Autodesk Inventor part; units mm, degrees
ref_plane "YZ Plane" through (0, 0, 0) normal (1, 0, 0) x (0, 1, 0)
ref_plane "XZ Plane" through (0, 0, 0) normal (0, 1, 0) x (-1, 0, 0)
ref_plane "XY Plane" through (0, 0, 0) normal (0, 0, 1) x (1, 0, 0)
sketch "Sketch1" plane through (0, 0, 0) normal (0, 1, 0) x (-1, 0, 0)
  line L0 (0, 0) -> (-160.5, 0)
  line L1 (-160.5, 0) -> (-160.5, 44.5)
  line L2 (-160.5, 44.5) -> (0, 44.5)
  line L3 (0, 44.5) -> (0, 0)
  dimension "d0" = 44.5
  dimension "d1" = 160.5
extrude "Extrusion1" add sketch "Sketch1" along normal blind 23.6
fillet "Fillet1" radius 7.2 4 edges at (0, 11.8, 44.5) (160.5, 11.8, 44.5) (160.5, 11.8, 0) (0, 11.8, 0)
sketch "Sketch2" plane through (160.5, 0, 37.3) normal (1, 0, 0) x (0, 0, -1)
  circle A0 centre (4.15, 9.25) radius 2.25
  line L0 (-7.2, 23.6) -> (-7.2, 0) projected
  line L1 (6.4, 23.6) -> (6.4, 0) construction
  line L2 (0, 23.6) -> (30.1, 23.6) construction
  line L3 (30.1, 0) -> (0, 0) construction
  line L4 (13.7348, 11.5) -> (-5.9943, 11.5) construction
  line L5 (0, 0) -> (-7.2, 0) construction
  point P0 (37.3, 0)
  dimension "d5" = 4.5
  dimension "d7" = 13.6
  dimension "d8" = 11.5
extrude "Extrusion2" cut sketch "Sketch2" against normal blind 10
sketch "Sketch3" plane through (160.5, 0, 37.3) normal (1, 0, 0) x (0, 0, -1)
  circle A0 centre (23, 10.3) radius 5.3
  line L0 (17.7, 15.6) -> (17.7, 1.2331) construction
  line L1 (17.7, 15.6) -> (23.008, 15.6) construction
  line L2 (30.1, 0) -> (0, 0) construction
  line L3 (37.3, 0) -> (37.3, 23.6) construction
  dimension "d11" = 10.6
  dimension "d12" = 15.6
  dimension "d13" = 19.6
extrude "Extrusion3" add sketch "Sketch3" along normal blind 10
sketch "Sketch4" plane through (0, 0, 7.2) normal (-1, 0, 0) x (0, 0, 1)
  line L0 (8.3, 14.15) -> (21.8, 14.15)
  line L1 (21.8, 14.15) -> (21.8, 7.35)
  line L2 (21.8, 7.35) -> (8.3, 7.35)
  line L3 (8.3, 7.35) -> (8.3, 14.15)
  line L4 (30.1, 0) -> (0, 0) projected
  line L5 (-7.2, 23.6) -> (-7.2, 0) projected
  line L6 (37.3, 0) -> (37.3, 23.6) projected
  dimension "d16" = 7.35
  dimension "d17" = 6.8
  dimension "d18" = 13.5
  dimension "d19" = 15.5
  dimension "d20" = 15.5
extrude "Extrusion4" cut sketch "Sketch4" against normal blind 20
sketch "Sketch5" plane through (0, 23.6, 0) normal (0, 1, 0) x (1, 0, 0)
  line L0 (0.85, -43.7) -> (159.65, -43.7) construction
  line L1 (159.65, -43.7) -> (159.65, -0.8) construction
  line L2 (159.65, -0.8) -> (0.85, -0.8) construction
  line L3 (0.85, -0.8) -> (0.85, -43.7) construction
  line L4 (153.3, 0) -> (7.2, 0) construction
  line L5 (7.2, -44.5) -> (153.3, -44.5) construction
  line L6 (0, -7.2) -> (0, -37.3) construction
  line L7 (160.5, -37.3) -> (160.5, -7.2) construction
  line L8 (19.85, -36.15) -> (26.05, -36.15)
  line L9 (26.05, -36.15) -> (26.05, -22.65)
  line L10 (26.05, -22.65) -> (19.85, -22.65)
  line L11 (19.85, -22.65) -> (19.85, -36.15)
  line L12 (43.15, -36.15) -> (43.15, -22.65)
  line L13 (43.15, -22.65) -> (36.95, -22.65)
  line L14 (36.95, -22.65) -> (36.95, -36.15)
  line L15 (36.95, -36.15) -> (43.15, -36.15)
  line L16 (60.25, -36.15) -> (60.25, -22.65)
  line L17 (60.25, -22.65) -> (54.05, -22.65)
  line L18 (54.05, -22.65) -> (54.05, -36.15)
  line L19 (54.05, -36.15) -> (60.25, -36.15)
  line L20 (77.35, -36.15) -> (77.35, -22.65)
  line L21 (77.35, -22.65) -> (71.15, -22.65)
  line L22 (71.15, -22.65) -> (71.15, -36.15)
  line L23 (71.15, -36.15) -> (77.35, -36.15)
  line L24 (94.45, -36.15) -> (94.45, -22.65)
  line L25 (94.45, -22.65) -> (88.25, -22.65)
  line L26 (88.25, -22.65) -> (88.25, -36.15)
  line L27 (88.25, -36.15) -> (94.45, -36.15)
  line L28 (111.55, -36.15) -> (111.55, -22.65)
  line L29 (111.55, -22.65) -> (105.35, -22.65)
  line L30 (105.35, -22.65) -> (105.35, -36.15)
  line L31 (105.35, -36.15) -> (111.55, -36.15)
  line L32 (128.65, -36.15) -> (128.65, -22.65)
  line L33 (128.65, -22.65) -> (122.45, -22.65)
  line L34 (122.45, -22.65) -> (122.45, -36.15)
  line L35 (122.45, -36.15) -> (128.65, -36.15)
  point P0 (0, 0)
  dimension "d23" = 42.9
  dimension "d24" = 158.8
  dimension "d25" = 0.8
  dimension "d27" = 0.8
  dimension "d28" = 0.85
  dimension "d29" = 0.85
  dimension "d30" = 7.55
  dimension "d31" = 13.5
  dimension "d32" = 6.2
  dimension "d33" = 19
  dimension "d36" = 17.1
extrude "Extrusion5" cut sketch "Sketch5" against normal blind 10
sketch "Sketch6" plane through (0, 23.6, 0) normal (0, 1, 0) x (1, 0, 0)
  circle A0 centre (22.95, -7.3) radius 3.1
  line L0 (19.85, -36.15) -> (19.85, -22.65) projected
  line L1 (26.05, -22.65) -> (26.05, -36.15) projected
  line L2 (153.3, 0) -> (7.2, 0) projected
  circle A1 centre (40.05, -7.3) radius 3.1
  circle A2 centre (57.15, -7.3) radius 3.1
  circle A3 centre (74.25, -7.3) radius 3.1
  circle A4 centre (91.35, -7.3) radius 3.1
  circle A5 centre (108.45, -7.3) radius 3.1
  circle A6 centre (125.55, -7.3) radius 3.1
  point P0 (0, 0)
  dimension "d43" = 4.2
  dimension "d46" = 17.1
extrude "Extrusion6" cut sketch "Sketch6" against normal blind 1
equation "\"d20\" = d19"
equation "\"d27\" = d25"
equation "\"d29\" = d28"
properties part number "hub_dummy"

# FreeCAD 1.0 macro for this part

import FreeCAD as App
import Part
import Sketcher
Q = App.Units.Quantity


def edges_at(feature, points):
    """Names of the edges that pass closest to the given points."""
    edges = feature.Shape.Edges
    near = lambda p: min(range(len(edges)), key=lambda i: edges[i].distToShape(Part.Vertex(*p))[0])
    return sorted({f"Edge{near(p) + 1}" for p in points})

doc = App.newDocument("Part")
params = doc.addObject("Spreadsheet::Sheet", "Params")
for row, (alias, value) in enumerate([
    ("sketch1_width", "160.5 mm"),
    ("sketch1_height", "44.5 mm"),
    ("pad1_length", "23.6 mm"),
    ("fillet_radius", "7.2 mm"),
    ("sketch2_diameter", "4.5 mm"),
    ("pocket1_length", "10 mm"),
    ("sketch3_diameter", "10.6 mm"),
    ("pad2_length", "10 mm"),
    ("sketch4_width", "6.8 mm"),
    ("sketch4_height", "13.5 mm"),
    ("pocket2_length", "20 mm"),
    ("sketch5_width", "6.2 mm"),
    ("sketch5_height", "13.5 mm"),
    ("pocket3_length", "10 mm"),
    ("sketch6_diameter", "6.2 mm"),
    ("pocket4_length", "1 mm"),
], start=1):
    params.set(f"A{row}", alias)
    params.set(f"B{row}", "=" + value)
    params.setAlias(f"B{row}", alias)

body = doc.addObject("PartDesign::Body", "Body")

# Sketch on XZ plane
sketch1 = body.newObject("Sketcher::SketchObject", "Sketch")
sketch1.AttachmentSupport = (doc.getObject("XZ_Plane"), [""])
sketch1.MapMode = "FlatFace"
sketch1.addGeometry([
    Part.LineSegment(App.Vector(160, 0, 0), App.Vector(0, 0, 0)),
    Part.LineSegment(App.Vector(0, 0, 0), App.Vector(0, 44, 0)),
    Part.LineSegment(App.Vector(0, 44, 0), App.Vector(160, 44, 0)),
    Part.LineSegment(App.Vector(160, 44, 0), App.Vector(160, 0, 0)),
], False)
sketch1.addConstraint([
    Sketcher.Constraint("Coincident", 0, 2, 1, 1),
    Sketcher.Constraint("Coincident", 1, 2, 2, 1),
    Sketcher.Constraint("Coincident", 2, 2, 3, 1),
    Sketcher.Constraint("Coincident", 3, 2, 0, 1),
    Sketcher.Constraint("Horizontal", 0),
    Sketcher.Constraint("Vertical", 1),
    Sketcher.Constraint("Horizontal", 2),
    Sketcher.Constraint("Vertical", 3),
    Sketcher.Constraint("Coincident", 0, 2, -1, 1),
    Sketcher.Constraint("DistanceX", 0, 2, 0, 1, Q("160.5 mm")),
    Sketcher.Constraint("DistanceY", 1, 1, 1, 2, Q("44.5 mm")),
])
sketch1.setExpression("Constraints[9]", "Params.sketch1_width")
sketch1.setExpression("Constraints[10]", "Params.sketch1_height")
pad1 = body.newObject("PartDesign::Pad", "Pad")
pad1.Profile = sketch1
pad1.setExpression("Length", "Params.pad1_length")
pad1.Reversed = True
doc.recompute()

fillet = body.newObject("PartDesign::Fillet", "Fillet")
fillet.Base = (pad1, edges_at(pad1, [
    (0, 11.8, 44.5),
    (160.5, 11.8, 44.5),
    (160.5, 11.8, 0),
    (0, 11.8, 0),
]))
fillet.setExpression("Radius", "Params.fillet_radius")

# Sketch on YZ plane
sketch2 = body.newObject("Sketcher::SketchObject", "Sketch001")
sketch2.AttachmentSupport = (doc.getObject("YZ_Plane"), [""])
sketch2.MapMode = "FlatFace"
sketch2.AttachmentOffset = App.Placement(App.Vector(0, 0, 160.5), App.Rotation())
sketch2.addGeometry(Part.Circle(App.Vector(9.2, 33.1, 0), App.Vector(0, 0, 1), 2.2), False)
sketch2.addConstraint([
    Sketcher.Constraint("Diameter", 0, Q("4.5 mm")),
    Sketcher.Constraint("DistanceX", -1, 1, 0, 3, Q("9.25 mm")),
    Sketcher.Constraint("DistanceY", -1, 1, 0, 3, Q("33.15 mm")),
])
sketch2.setExpression("Constraints[0]", "Params.sketch2_diameter")
pocket1 = body.newObject("PartDesign::Pocket", "Pocket")
pocket1.Profile = sketch2
pocket1.setExpression("Length", "Params.pocket1_length")

# Sketch on YZ plane
sketch3 = body.newObject("Sketcher::SketchObject", "Sketch002")
sketch3.AttachmentSupport = (doc.getObject("YZ_Plane"), [""])
sketch3.MapMode = "FlatFace"
sketch3.AttachmentOffset = App.Placement(App.Vector(0, 0, 160.5), App.Rotation())
sketch3.addGeometry(Part.Circle(App.Vector(10, 14, 0), App.Vector(0, 0, 1), 5), False)
sketch3.addConstraint([
    Sketcher.Constraint("Diameter", 0, Q("10.6 mm")),
    Sketcher.Constraint("DistanceX", -1, 1, 0, 3, Q("10.3 mm")),
    Sketcher.Constraint("DistanceY", -1, 1, 0, 3, Q("14.3 mm")),
])
sketch3.setExpression("Constraints[0]", "Params.sketch3_diameter")
pad2 = body.newObject("PartDesign::Pad", "Pad001")
pad2.Profile = sketch3
pad2.setExpression("Length", "Params.pad2_length")

# Sketch on YZ plane
sketch4 = body.newObject("Sketcher::SketchObject", "Sketch003")
sketch4.AttachmentSupport = (doc.getObject("YZ_Plane"), [""])
sketch4.MapMode = "FlatFace"
sketch4.addGeometry([
    Part.LineSegment(App.Vector(14, 29, 0), App.Vector(14, 16, 0)),
    Part.LineSegment(App.Vector(14, 16, 0), App.Vector(7, 16, 0)),
    Part.LineSegment(App.Vector(7, 16, 0), App.Vector(7, 29, 0)),
    Part.LineSegment(App.Vector(7, 29, 0), App.Vector(14, 29, 0)),
], False)
sketch4.addConstraint([
    Sketcher.Constraint("Coincident", 0, 2, 1, 1),
    Sketcher.Constraint("Coincident", 1, 2, 2, 1),
    Sketcher.Constraint("Coincident", 2, 2, 3, 1),
    Sketcher.Constraint("Coincident", 3, 2, 0, 1),
    Sketcher.Constraint("Vertical", 0),
    Sketcher.Constraint("Horizontal", 1),
    Sketcher.Constraint("Vertical", 2),
    Sketcher.Constraint("Horizontal", 3),
    Sketcher.Constraint("DistanceX", 1, 2, 1, 1, Q("6.8 mm")),
    Sketcher.Constraint("DistanceY", 0, 2, 0, 1, Q("13.5 mm")),
    Sketcher.Constraint("DistanceY", -1, 1, 0, 2, Q("15.5 mm")),
    Sketcher.Constraint("DistanceX", -1, 1, 1, 2, Q("7.35 mm")),
])
sketch4.setExpression("Constraints[8]", "Params.sketch4_width")
sketch4.setExpression("Constraints[9]", "Params.sketch4_height")
pocket2 = body.newObject("PartDesign::Pocket", "Pocket001")
pocket2.Profile = sketch4
pocket2.setExpression("Length", "Params.pocket2_length")
pocket2.Reversed = True

# Sketch on XZ plane
sketch5 = body.newObject("Sketcher::SketchObject", "Sketch004")
sketch5.AttachmentSupport = (doc.getObject("XZ_Plane"), [""])
sketch5.MapMode = "FlatFace"
sketch5.AttachmentOffset = App.Placement(App.Vector(0, 0, -23.6), App.Rotation())
sketch5.addGeometry([
    Part.LineSegment(App.Vector(20, 23, 0), App.Vector(20, 36, 0)),  # 0
    Part.LineSegment(App.Vector(20, 36, 0), App.Vector(26, 36, 0)),  # 1
    Part.LineSegment(App.Vector(26, 36, 0), App.Vector(26, 23, 0)),  # 2
    Part.LineSegment(App.Vector(26, 23, 0), App.Vector(20, 23, 0)),  # 3
    Part.LineSegment(App.Vector(37, 36, 0), App.Vector(43, 36, 0)),  # 4
    Part.LineSegment(App.Vector(43, 36, 0), App.Vector(43, 23, 0)),  # 5
    Part.LineSegment(App.Vector(43, 23, 0), App.Vector(37, 23, 0)),  # 6
    Part.LineSegment(App.Vector(37, 23, 0), App.Vector(37, 36, 0)),  # 7
    Part.LineSegment(App.Vector(54, 36, 0), App.Vector(60, 36, 0)),  # 8
    Part.LineSegment(App.Vector(60, 36, 0), App.Vector(60, 23, 0)),  # 9
    Part.LineSegment(App.Vector(60, 23, 0), App.Vector(54, 23, 0)),  # 10
    Part.LineSegment(App.Vector(54, 23, 0), App.Vector(54, 36, 0)),  # 11
    Part.LineSegment(App.Vector(71, 36, 0), App.Vector(77, 36, 0)),  # 12
    Part.LineSegment(App.Vector(77, 36, 0), App.Vector(77, 23, 0)),  # 13
    Part.LineSegment(App.Vector(77, 23, 0), App.Vector(71, 23, 0)),  # 14
    Part.LineSegment(App.Vector(71, 23, 0), App.Vector(71, 36, 0)),  # 15
    Part.LineSegment(App.Vector(88, 36, 0), App.Vector(94, 36, 0)),  # 16
    Part.LineSegment(App.Vector(94, 36, 0), App.Vector(94, 23, 0)),  # 17
    Part.LineSegment(App.Vector(94, 23, 0), App.Vector(88, 23, 0)),  # 18
    Part.LineSegment(App.Vector(88, 23, 0), App.Vector(88, 36, 0)),  # 19
    Part.LineSegment(App.Vector(105, 36, 0), App.Vector(112, 36, 0)),  # 20
    Part.LineSegment(App.Vector(112, 36, 0), App.Vector(112, 23, 0)),  # 21
    Part.LineSegment(App.Vector(112, 23, 0), App.Vector(105, 23, 0)),  # 22
    Part.LineSegment(App.Vector(105, 23, 0), App.Vector(105, 36, 0)),  # 23
    Part.LineSegment(App.Vector(122, 36, 0), App.Vector(129, 36, 0)),  # 24
    Part.LineSegment(App.Vector(129, 36, 0), App.Vector(129, 23, 0)),  # 25
    Part.LineSegment(App.Vector(129, 23, 0), App.Vector(122, 23, 0)),  # 26
    Part.LineSegment(App.Vector(122, 23, 0), App.Vector(122, 36, 0)),  # 27
], False)
sketch5.addConstraint([
    Sketcher.Constraint("Coincident", 0, 2, 1, 1),
    Sketcher.Constraint("Coincident", 1, 2, 2, 1),
    Sketcher.Constraint("Coincident", 2, 2, 3, 1),
    Sketcher.Constraint("Coincident", 3, 2, 0, 1),
    Sketcher.Constraint("Coincident", 4, 2, 5, 1),
    Sketcher.Constraint("Coincident", 5, 2, 6, 1),
    Sketcher.Constraint("Coincident", 6, 2, 7, 1),
    Sketcher.Constraint("Coincident", 7, 2, 4, 1),
    Sketcher.Constraint("Coincident", 8, 2, 9, 1),
    Sketcher.Constraint("Coincident", 9, 2, 10, 1),
    Sketcher.Constraint("Coincident", 10, 2, 11, 1),
    Sketcher.Constraint("Coincident", 11, 2, 8, 1),
    Sketcher.Constraint("Coincident", 12, 2, 13, 1),
    Sketcher.Constraint("Coincident", 13, 2, 14, 1),
    Sketcher.Constraint("Coincident", 14, 2, 15, 1),
    Sketcher.Constraint("Coincident", 15, 2, 12, 1),
    Sketcher.Constraint("Coincident", 16, 2, 17, 1),
    Sketcher.Constraint("Coincident", 17, 2, 18, 1),
    Sketcher.Constraint("Coincident", 18, 2, 19, 1),
    Sketcher.Constraint("Coincident", 19, 2, 16, 1),
    Sketcher.Constraint("Coincident", 20, 2, 21, 1),
    Sketcher.Constraint("Coincident", 21, 2, 22, 1),
    Sketcher.Constraint("Coincident", 22, 2, 23, 1),
    Sketcher.Constraint("Coincident", 23, 2, 20, 1),
    Sketcher.Constraint("Coincident", 24, 2, 25, 1),
    Sketcher.Constraint("Coincident", 25, 2, 26, 1),
    Sketcher.Constraint("Coincident", 26, 2, 27, 1),
    Sketcher.Constraint("Coincident", 27, 2, 24, 1),
    Sketcher.Constraint("Vertical", 0),
    Sketcher.Constraint("Horizontal", 1),
    Sketcher.Constraint("Vertical", 2),
    Sketcher.Constraint("Horizontal", 3),
    Sketcher.Constraint("Horizontal", 4),
    Sketcher.Constraint("Vertical", 5),
    Sketcher.Constraint("Horizontal", 6),
    Sketcher.Constraint("Vertical", 7),
    Sketcher.Constraint("Horizontal", 8),
    Sketcher.Constraint("Vertical", 9),
    Sketcher.Constraint("Horizontal", 10),
    Sketcher.Constraint("Vertical", 11),
    Sketcher.Constraint("Horizontal", 12),
    Sketcher.Constraint("Vertical", 13),
    Sketcher.Constraint("Horizontal", 14),
    Sketcher.Constraint("Vertical", 15),
    Sketcher.Constraint("Horizontal", 16),
    Sketcher.Constraint("Vertical", 17),
    Sketcher.Constraint("Horizontal", 18),
    Sketcher.Constraint("Vertical", 19),
    Sketcher.Constraint("Horizontal", 20),
    Sketcher.Constraint("Vertical", 21),
    Sketcher.Constraint("Horizontal", 22),
    Sketcher.Constraint("Vertical", 23),
    Sketcher.Constraint("Horizontal", 24),
    Sketcher.Constraint("Vertical", 25),
    Sketcher.Constraint("Horizontal", 26),
    Sketcher.Constraint("Vertical", 27),
    Sketcher.Constraint("Horizontal", 1, 2, 4, 2),
    Sketcher.Constraint("Horizontal", 3, 2, 5, 2),
    Sketcher.Constraint("Horizontal", 7, 2, 8, 2),
    Sketcher.Constraint("Horizontal", 6, 2, 9, 2),
    Sketcher.Constraint("Horizontal", 11, 2, 12, 2),
    Sketcher.Constraint("Horizontal", 10, 2, 13, 2),
    Sketcher.Constraint("Horizontal", 15, 2, 16, 2),
    Sketcher.Constraint("Horizontal", 14, 2, 17, 2),
    Sketcher.Constraint("Horizontal", 19, 2, 20, 2),
    Sketcher.Constraint("Horizontal", 18, 2, 21, 2),
    Sketcher.Constraint("Horizontal", 23, 2, 24, 2),
    Sketcher.Constraint("Horizontal", 22, 2, 25, 2),
    Sketcher.Constraint("Equal", 3, 4),
    Sketcher.Constraint("Equal", 6, 8),
    Sketcher.Constraint("Equal", 10, 12),
    Sketcher.Constraint("Equal", 14, 16),
    Sketcher.Constraint("Equal", 18, 20),
    Sketcher.Constraint("Equal", 22, 24),
    Sketcher.Constraint("DistanceX", 1, 1, 1, 2, Q("6.2 mm")),
    Sketcher.Constraint("DistanceY", 0, 1, 0, 2, Q("13.5 mm")),
    Sketcher.Constraint("DistanceX", 1, 2, 4, 2, Q("17.1 mm")),
    Sketcher.Constraint("DistanceX", 4, 2, 8, 2, Q("17.1 mm")),
    Sketcher.Constraint("DistanceX", 8, 2, 12, 2, Q("17.1 mm")),
    Sketcher.Constraint("DistanceX", 12, 2, 16, 2, Q("17.1 mm")),
    Sketcher.Constraint("DistanceX", 16, 2, 20, 2, Q("17.1 mm")),
    Sketcher.Constraint("DistanceX", 20, 2, 24, 2, Q("17.1 mm")),
    Sketcher.Constraint("DistanceX", -1, 1, 0, 2, Q("19.85 mm")),
    Sketcher.Constraint("DistanceY", -1, 1, 0, 2, Q("36.15 mm")),
])
sketch5.setExpression("Constraints[74]", "Params.sketch5_width")
sketch5.setExpression("Constraints[75]", "Params.sketch5_height")
pocket3 = body.newObject("PartDesign::Pocket", "Pocket002")
pocket3.Profile = sketch5
pocket3.setExpression("Length", "Params.pocket3_length")
pocket3.Reversed = True

# Sketch on XZ plane
sketch6 = body.newObject("Sketcher::SketchObject", "Sketch005")
sketch6.AttachmentSupport = (doc.getObject("XZ_Plane"), [""])
sketch6.MapMode = "FlatFace"
sketch6.AttachmentOffset = App.Placement(App.Vector(0, 0, -23.6), App.Rotation())
sketch6.addGeometry([
    Part.Circle(App.Vector(22.9, 7.3, 0), App.Vector(0, 0, 1), 3.1),  # 0
    Part.Circle(App.Vector(40, 7.3, 0), App.Vector(0, 0, 1), 3.1),  # 1
    Part.Circle(App.Vector(57.1, 7.3, 0), App.Vector(0, 0, 1), 3.1),  # 2
    Part.Circle(App.Vector(74.2, 7.3, 0), App.Vector(0, 0, 1), 3.1),  # 3
    Part.Circle(App.Vector(91.3, 7.3, 0), App.Vector(0, 0, 1), 3.1),  # 4
    Part.Circle(App.Vector(108.5, 7.3, 0), App.Vector(0, 0, 1), 3.1),  # 5
    Part.Circle(App.Vector(125.5, 7.3, 0), App.Vector(0, 0, 1), 3.1),  # 6
], False)
sketch6.addConstraint([
    Sketcher.Constraint("Equal", 0, 1),
    Sketcher.Constraint("Equal", 1, 2),
    Sketcher.Constraint("Equal", 2, 3),
    Sketcher.Constraint("Equal", 3, 4),
    Sketcher.Constraint("Equal", 4, 5),
    Sketcher.Constraint("Equal", 5, 6),
    Sketcher.Constraint("Horizontal", 0, 3, 1, 3),
    Sketcher.Constraint("Horizontal", 1, 3, 2, 3),
    Sketcher.Constraint("Horizontal", 2, 3, 3, 3),
    Sketcher.Constraint("Horizontal", 3, 3, 4, 3),
    Sketcher.Constraint("Horizontal", 4, 3, 5, 3),
    Sketcher.Constraint("Horizontal", 5, 3, 6, 3),
    Sketcher.Constraint("Diameter", 0, Q("6.2 mm")),
    Sketcher.Constraint("DistanceX", 0, 3, 1, 3, Q("17.1 mm")),
    Sketcher.Constraint("DistanceX", 1, 3, 2, 3, Q("17.1 mm")),
    Sketcher.Constraint("DistanceX", 2, 3, 3, 3, Q("17.1 mm")),
    Sketcher.Constraint("DistanceX", 3, 3, 4, 3, Q("17.1 mm")),
    Sketcher.Constraint("DistanceX", 4, 3, 5, 3, Q("17.1 mm")),
    Sketcher.Constraint("DistanceX", 5, 3, 6, 3, Q("17.1 mm")),
    Sketcher.Constraint("DistanceY", -1, 1, 0, 3, Q("7.3 mm")),
    Sketcher.Constraint("DistanceX", -1, 1, 0, 3, Q("22.95 mm")),
])
sketch6.setExpression("Constraints[12]", "Params.sketch6_diameter")
pocket4 = body.newObject("PartDesign::Pocket", "Pocket003")
pocket4.Profile = sketch6
pocket4.setExpression("Length", "Params.pocket4_length")
pocket4.Reversed = True

doc.recompute()
